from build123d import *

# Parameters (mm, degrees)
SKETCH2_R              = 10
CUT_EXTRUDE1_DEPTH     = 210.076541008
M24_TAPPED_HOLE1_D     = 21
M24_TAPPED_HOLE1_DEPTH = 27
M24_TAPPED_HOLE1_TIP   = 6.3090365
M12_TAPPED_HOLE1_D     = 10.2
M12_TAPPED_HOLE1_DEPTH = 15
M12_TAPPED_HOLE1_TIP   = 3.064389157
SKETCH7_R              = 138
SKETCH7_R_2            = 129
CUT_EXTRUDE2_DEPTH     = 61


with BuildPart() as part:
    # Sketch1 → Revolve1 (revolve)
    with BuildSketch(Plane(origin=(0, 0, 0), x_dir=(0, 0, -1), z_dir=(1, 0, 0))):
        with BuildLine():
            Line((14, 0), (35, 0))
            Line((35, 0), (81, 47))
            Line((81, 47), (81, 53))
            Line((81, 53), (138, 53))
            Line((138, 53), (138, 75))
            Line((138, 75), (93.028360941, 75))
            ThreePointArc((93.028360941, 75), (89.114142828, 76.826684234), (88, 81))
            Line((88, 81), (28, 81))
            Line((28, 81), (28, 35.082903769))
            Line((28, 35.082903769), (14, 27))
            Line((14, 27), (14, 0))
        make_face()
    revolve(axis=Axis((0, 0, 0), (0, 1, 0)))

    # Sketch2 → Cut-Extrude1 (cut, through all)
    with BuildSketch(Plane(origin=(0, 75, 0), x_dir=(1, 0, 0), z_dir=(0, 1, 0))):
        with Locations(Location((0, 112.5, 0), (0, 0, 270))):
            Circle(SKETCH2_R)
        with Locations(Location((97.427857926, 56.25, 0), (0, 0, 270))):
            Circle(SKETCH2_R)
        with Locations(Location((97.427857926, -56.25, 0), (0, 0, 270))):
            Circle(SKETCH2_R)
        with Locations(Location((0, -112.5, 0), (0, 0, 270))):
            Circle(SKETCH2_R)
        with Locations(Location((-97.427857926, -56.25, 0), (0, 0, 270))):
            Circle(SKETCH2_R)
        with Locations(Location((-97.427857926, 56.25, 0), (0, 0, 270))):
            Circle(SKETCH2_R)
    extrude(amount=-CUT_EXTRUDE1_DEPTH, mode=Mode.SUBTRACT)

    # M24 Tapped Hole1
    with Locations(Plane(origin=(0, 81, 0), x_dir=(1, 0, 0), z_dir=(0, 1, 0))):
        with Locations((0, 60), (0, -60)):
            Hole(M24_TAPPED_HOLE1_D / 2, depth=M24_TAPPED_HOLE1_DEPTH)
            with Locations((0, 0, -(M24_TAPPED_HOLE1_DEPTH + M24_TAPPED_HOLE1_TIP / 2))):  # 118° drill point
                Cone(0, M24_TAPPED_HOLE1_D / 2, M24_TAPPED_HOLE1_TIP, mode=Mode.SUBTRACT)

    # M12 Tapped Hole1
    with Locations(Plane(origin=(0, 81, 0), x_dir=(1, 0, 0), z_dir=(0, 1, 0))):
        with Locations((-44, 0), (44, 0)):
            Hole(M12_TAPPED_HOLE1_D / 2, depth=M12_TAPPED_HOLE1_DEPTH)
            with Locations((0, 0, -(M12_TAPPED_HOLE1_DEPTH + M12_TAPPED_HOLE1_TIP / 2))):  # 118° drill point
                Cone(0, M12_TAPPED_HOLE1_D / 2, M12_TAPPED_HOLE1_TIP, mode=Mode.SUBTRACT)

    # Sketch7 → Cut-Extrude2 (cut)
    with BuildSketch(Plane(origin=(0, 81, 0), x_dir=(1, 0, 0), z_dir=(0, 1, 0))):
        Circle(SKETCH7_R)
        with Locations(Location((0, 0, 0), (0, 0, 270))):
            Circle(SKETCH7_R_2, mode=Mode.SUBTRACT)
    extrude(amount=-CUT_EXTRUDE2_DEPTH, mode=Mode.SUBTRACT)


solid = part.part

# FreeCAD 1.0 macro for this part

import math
import FreeCAD as App
import Part
import Sketcher

V = App.Vector
Q = App.Units.Quantity

doc = App.newDocument("Part")
body = doc.addObject("PartDesign::Body", "Body")

# Sketch on YZ plane
sketch1 = body.newObject("Sketcher::SketchObject", "Sketch")
sketch1.AttachmentSupport = (doc.getObject("YZ_Plane"), [""])
sketch1.MapMode = "FlatFace"
sketch1.addGeometry(Part.LineSegment(V(0, -14, 0), V(0, -35, 0)), False)
sketch1.addGeometry(Part.LineSegment(V(0, -35, 0), V(47, -81, 0)), False)
sketch1.addGeometry(Part.LineSegment(V(47, -81, 0), V(53, -81, 0)), False)
sketch1.addGeometry(Part.LineSegment(V(53, -81, 0), V(53, -138, 0)), False)
sketch1.addGeometry(Part.LineSegment(V(53, -138, 0), V(75, -138, 0)), False)
sketch1.addGeometry(Part.LineSegment(V(75, -138, 0), V(75, -93, 0)), False)
sketch1.addGeometry(Part.ArcOfCircle(Part.Circle(V(80, -93, 0), V(0, 0, 1), 5), math.radians(80), math.radians(180)), False)
sketch1.addGeometry(Part.LineSegment(V(81, -88, 0), V(81, -28, 0)), False)
sketch1.addGeometry(Part.LineSegment(V(81, -28, 0), V(35, -28, 0)), False)
sketch1.addGeometry(Part.LineSegment(V(35, -28, 0), V(27, -14, 0)), False)
sketch1.addGeometry(Part.LineSegment(V(27, -14, 0), V(0, -14, 0)), False)
sketch1.addConstraint(Sketcher.Constraint("Coincident", 0, 2, 1, 1))
sketch1.addConstraint(Sketcher.Constraint("Coincident", 1, 2, 2, 1))
sketch1.addConstraint(Sketcher.Constraint("Coincident", 2, 2, 3, 1))
sketch1.addConstraint(Sketcher.Constraint("Coincident", 3, 2, 4, 1))
sketch1.addConstraint(Sketcher.Constraint("Coincident", 4, 2, 5, 1))
sketch1.addConstraint(Sketcher.Constraint("Tangent", 5, 2, 6, 2))
sketch1.addConstraint(Sketcher.Constraint("Coincident", 6, 1, 7, 1))
sketch1.addConstraint(Sketcher.Constraint("Coincident", 7, 2, 8, 1))
sketch1.addConstraint(Sketcher.Constraint("Coincident", 8, 2, 9, 1))
sketch1.addConstraint(Sketcher.Constraint("Coincident", 9, 2, 10, 1))
sketch1.addConstraint(Sketcher.Constraint("Coincident", 10, 2, 0, 1))
sketch1.addConstraint(Sketcher.Constraint("Vertical", 0))
sketch1.addConstraint(Sketcher.Constraint("Horizontal", 2))
sketch1.addConstraint(Sketcher.Constraint("Vertical", 3))
sketch1.addConstraint(Sketcher.Constraint("Horizontal", 4))
sketch1.addConstraint(Sketcher.Constraint("Vertical", 5))
sketch1.addConstraint(Sketcher.Constraint("Vertical", 7))
sketch1.addConstraint(Sketcher.Constraint("Horizontal", 8))
sketch1.addConstraint(Sketcher.Constraint("Horizontal", 10))
sketch1.addConstraint(Sketcher.Constraint("PointOnObject", 0, 2, -2))
sketch1.addConstraint(Sketcher.Constraint("DistanceX", 2, 1, 2, 2, Q("6 mm")))
sketch1.addConstraint(Sketcher.Constraint("DistanceX", 4, 1, 4, 2, Q("22 mm")))
sketch1.addConstraint(Sketcher.Constraint("DistanceX", 10, 2, 10, 1, Q("27 mm")))
sketch1.addConstraint(Sketcher.Constraint("DistanceY", 0, 2, 0, 1, Q("21 mm")))
sketch1.addConstraint(Sketcher.Constraint("DistanceY", 3, 2, 3, 1, Q("57 mm")))
sketch1.addConstraint(Sketcher.Constraint("DistanceY", 7, 1, 7, 2, Q("60 mm")))
sketch1.addConstraint(Sketcher.Constraint("Angle", 9, Q("120 deg")))
sketch1.addConstraint(Sketcher.Constraint("DistanceY", 0, 2, -1, 1, Q("35 mm")))
sketch1.addConstraint(Sketcher.Constraint("DistanceX", -1, 1, 1, 2, Q("47 mm")))
sketch1.addConstraint(Sketcher.Constraint("DistanceY", 1, 2, -1, 1, Q("81 mm")))
sketch1.addConstraint(Sketcher.Constraint("DistanceX", -1, 1, 6, 1, Q("81 mm")))
sketch1.addConstraint(Sketcher.Constraint("DistanceY", 6, 1, -1, 1, Q("88 mm")))
sketch1.addConstraint(Sketcher.Constraint("Radius", 6, Q("5.107034 mm")))
revolution = body.newObject("PartDesign::Revolution", "Revolution")
revolution.Profile = sketch1
revolution.ReferenceAxis = (sketch1, ["H_Axis"])
revolution.Angle = 360

# Sketch on XZ plane
sketch2 = body.newObject("Sketcher::SketchObject", "Sketch001")
sketch2.AttachmentSupport = (doc.getObject("XZ_Plane"), [""])
sketch2.MapMode = "FlatFace"
sketch2.AttachmentOffset = App.Placement(V(0, 0, -75), App.Rotation())
sketch2.addGeometry(Part.Circle(V(0, -112, 0), V(0, 0, 1), 10), False)
sketch2.addGeometry(Part.Circle(V(97, -56, 0), V(0, 0, 1), 10), False)
sketch2.addGeometry(Part.Circle(V(97, 56, 0), V(0, 0, 1), 10), False)
sketch2.addGeometry(Part.Circle(V(0, 112, 0), V(0, 0, 1), 10), False)
sketch2.addGeometry(Part.Circle(V(-97, 56, 0), V(0, 0, 1), 10), False)
sketch2.addGeometry(Part.Circle(V(-97, -56, 0), V(0, 0, 1), 10), False)
sketch2.addConstraint(Sketcher.Constraint("Equal", 0, 1))
sketch2.addConstraint(Sketcher.Constraint("Equal", 1, 2))
sketch2.addConstraint(Sketcher.Constraint("Equal", 2, 3))
sketch2.addConstraint(Sketcher.Constraint("Equal", 3, 4))
sketch2.addConstraint(Sketcher.Constraint("Equal", 4, 5))
sketch2.addConstraint(Sketcher.Constraint("Symmetric", 0, 3, 3, 3, -1, 1))
sketch2.addConstraint(Sketcher.Constraint("Symmetric", 1, 3, 4, 3, -1, 1))
sketch2.addConstraint(Sketcher.Constraint("Symmetric", 2, 3, 5, 3, -1, 1))
sketch2.addConstraint(Sketcher.Constraint("Symmetric", 2, 3, 4, 3, -2))
sketch2.addConstraint(Sketcher.Constraint("PointOnObject", 0, 3, -2))
sketch2.addConstraint(Sketcher.Constraint("Diameter", 0, Q("20 mm")))
sketch2.addConstraint(Sketcher.Constraint("DistanceY", 0, 3, 3, 3, Q("225 mm")))
sketch2.addConstraint(Sketcher.Constraint("DistanceY", 1, 3, 2, 3, Q("112.5 mm")))
sketch2.addConstraint(Sketcher.Constraint("DistanceX", -1, 1, 1, 3, Q("97.427858 mm")))
pocket1 = body.newObject("PartDesign::Pocket", "Pocket")
pocket1.Profile = sketch2
pocket1.Type = "ThroughAll"
pocket1.Reversed = True

# Sketch on XZ plane
sketch3 = body.newObject("Sketcher::SketchObject", "Sketch002")
sketch3.AttachmentSupport = (doc.getObject("XZ_Plane"), [""])
sketch3.MapMode = "FlatFace"
sketch3.AttachmentOffset = App.Placement(V(0, 0, -81), App.Rotation())
sketch3.addGeometry(Part.Circle(V(0, -60, 0), V(0, 0, 1), 10), False)
sketch3.addGeometry(Part.Circle(V(0, 60, 0), V(0, 0, 1), 10), False)
sketch3.addConstraint(Sketcher.Constraint("Equal", 0, 1))
sketch3.addConstraint(Sketcher.Constraint("Symmetric", 0, 3, 1, 3, -1, 1))
sketch3.addConstraint(Sketcher.Constraint("PointOnObject", 0, 3, -2))
sketch3.addConstraint(Sketcher.Constraint("Diameter", 0, Q("21 mm")))
sketch3.addConstraint(Sketcher.Constraint("DistanceY", 0, 3, -1, 1, Q("60 mm")))
doc.recompute()
hole = body.newObject("PartDesign::Hole", "Hole")
hole.Profile = sketch3
hole.ThreadType = "None"
hole.Diameter = 21
hole.DepthType = "Dimension"
hole.Depth = 27
hole.DrillPoint = "Angled"
hole.DrillPointAngle = 118
hole.Reversed = True

# Sketch on XZ plane
sketch4 = body.newObject("Sketcher::SketchObject", "Sketch003")
sketch4.AttachmentSupport = (doc.getObject("XZ_Plane"), [""])
sketch4.MapMode = "FlatFace"
sketch4.AttachmentOffset = App.Placement(V(0, 0, -81), App.Rotation())
sketch4.addGeometry(Part.Circle(V(-44, 0, 0), V(0, 0, 1), 5), False)
sketch4.addGeometry(Part.Circle(V(44, 0, 0), V(0, 0, 1), 5), False)
sketch4.addConstraint(Sketcher.Constraint("Equal", 0, 1))
sketch4.addConstraint(Sketcher.Constraint("Symmetric", 0, 3, 1, 3, -1, 1))
sketch4.addConstraint(Sketcher.Constraint("PointOnObject", 0, 3, -1))
sketch4.addConstraint(Sketcher.Constraint("Diameter", 0, Q("10.2 mm")))
sketch4.addConstraint(Sketcher.Constraint("DistanceX", 0, 3, -1, 1, Q("44 mm")))
doc.recompute()
hole2 = body.newObject("PartDesign::Hole", "Hole001")
hole2.Profile = sketch4
hole2.ThreadType = "None"
hole2.Diameter = 10.2
hole2.DepthType = "Dimension"
hole2.Depth = 15
hole2.DrillPoint = "Angled"
hole2.DrillPointAngle = 118
hole2.Reversed = True

# Sketch on XZ plane
sketch5 = body.newObject("Sketcher::SketchObject", "Sketch004")
sketch5.AttachmentSupport = (doc.getObject("XZ_Plane"), [""])
sketch5.MapMode = "FlatFace"
sketch5.AttachmentOffset = App.Placement(V(0, 0, -81), App.Rotation())
sketch5.addGeometry(Part.Circle(V(0, 0, 0), V(0, 0, 1), 138), False)
sketch5.addGeometry(Part.Circle(V(0, 0, 0), V(0, 0, 1), 129), False)
sketch5.addConstraint(Sketcher.Constraint("Coincident", 0, 3, -1, 1))
sketch5.addConstraint(Sketcher.Constraint("Coincident", 1, 3, -1, 1))
sketch5.addConstraint(Sketcher.Constraint("Diameter", 0, Q("276 mm")))
sketch5.addConstraint(Sketcher.Constraint("Diameter", 1, Q("258 mm")))
pocket2 = body.newObject("PartDesign::Pocket", "Pocket001")
pocket2.Profile = sketch5
pocket2.Length = 61
pocket2.Reversed = True

doc.recompute()
